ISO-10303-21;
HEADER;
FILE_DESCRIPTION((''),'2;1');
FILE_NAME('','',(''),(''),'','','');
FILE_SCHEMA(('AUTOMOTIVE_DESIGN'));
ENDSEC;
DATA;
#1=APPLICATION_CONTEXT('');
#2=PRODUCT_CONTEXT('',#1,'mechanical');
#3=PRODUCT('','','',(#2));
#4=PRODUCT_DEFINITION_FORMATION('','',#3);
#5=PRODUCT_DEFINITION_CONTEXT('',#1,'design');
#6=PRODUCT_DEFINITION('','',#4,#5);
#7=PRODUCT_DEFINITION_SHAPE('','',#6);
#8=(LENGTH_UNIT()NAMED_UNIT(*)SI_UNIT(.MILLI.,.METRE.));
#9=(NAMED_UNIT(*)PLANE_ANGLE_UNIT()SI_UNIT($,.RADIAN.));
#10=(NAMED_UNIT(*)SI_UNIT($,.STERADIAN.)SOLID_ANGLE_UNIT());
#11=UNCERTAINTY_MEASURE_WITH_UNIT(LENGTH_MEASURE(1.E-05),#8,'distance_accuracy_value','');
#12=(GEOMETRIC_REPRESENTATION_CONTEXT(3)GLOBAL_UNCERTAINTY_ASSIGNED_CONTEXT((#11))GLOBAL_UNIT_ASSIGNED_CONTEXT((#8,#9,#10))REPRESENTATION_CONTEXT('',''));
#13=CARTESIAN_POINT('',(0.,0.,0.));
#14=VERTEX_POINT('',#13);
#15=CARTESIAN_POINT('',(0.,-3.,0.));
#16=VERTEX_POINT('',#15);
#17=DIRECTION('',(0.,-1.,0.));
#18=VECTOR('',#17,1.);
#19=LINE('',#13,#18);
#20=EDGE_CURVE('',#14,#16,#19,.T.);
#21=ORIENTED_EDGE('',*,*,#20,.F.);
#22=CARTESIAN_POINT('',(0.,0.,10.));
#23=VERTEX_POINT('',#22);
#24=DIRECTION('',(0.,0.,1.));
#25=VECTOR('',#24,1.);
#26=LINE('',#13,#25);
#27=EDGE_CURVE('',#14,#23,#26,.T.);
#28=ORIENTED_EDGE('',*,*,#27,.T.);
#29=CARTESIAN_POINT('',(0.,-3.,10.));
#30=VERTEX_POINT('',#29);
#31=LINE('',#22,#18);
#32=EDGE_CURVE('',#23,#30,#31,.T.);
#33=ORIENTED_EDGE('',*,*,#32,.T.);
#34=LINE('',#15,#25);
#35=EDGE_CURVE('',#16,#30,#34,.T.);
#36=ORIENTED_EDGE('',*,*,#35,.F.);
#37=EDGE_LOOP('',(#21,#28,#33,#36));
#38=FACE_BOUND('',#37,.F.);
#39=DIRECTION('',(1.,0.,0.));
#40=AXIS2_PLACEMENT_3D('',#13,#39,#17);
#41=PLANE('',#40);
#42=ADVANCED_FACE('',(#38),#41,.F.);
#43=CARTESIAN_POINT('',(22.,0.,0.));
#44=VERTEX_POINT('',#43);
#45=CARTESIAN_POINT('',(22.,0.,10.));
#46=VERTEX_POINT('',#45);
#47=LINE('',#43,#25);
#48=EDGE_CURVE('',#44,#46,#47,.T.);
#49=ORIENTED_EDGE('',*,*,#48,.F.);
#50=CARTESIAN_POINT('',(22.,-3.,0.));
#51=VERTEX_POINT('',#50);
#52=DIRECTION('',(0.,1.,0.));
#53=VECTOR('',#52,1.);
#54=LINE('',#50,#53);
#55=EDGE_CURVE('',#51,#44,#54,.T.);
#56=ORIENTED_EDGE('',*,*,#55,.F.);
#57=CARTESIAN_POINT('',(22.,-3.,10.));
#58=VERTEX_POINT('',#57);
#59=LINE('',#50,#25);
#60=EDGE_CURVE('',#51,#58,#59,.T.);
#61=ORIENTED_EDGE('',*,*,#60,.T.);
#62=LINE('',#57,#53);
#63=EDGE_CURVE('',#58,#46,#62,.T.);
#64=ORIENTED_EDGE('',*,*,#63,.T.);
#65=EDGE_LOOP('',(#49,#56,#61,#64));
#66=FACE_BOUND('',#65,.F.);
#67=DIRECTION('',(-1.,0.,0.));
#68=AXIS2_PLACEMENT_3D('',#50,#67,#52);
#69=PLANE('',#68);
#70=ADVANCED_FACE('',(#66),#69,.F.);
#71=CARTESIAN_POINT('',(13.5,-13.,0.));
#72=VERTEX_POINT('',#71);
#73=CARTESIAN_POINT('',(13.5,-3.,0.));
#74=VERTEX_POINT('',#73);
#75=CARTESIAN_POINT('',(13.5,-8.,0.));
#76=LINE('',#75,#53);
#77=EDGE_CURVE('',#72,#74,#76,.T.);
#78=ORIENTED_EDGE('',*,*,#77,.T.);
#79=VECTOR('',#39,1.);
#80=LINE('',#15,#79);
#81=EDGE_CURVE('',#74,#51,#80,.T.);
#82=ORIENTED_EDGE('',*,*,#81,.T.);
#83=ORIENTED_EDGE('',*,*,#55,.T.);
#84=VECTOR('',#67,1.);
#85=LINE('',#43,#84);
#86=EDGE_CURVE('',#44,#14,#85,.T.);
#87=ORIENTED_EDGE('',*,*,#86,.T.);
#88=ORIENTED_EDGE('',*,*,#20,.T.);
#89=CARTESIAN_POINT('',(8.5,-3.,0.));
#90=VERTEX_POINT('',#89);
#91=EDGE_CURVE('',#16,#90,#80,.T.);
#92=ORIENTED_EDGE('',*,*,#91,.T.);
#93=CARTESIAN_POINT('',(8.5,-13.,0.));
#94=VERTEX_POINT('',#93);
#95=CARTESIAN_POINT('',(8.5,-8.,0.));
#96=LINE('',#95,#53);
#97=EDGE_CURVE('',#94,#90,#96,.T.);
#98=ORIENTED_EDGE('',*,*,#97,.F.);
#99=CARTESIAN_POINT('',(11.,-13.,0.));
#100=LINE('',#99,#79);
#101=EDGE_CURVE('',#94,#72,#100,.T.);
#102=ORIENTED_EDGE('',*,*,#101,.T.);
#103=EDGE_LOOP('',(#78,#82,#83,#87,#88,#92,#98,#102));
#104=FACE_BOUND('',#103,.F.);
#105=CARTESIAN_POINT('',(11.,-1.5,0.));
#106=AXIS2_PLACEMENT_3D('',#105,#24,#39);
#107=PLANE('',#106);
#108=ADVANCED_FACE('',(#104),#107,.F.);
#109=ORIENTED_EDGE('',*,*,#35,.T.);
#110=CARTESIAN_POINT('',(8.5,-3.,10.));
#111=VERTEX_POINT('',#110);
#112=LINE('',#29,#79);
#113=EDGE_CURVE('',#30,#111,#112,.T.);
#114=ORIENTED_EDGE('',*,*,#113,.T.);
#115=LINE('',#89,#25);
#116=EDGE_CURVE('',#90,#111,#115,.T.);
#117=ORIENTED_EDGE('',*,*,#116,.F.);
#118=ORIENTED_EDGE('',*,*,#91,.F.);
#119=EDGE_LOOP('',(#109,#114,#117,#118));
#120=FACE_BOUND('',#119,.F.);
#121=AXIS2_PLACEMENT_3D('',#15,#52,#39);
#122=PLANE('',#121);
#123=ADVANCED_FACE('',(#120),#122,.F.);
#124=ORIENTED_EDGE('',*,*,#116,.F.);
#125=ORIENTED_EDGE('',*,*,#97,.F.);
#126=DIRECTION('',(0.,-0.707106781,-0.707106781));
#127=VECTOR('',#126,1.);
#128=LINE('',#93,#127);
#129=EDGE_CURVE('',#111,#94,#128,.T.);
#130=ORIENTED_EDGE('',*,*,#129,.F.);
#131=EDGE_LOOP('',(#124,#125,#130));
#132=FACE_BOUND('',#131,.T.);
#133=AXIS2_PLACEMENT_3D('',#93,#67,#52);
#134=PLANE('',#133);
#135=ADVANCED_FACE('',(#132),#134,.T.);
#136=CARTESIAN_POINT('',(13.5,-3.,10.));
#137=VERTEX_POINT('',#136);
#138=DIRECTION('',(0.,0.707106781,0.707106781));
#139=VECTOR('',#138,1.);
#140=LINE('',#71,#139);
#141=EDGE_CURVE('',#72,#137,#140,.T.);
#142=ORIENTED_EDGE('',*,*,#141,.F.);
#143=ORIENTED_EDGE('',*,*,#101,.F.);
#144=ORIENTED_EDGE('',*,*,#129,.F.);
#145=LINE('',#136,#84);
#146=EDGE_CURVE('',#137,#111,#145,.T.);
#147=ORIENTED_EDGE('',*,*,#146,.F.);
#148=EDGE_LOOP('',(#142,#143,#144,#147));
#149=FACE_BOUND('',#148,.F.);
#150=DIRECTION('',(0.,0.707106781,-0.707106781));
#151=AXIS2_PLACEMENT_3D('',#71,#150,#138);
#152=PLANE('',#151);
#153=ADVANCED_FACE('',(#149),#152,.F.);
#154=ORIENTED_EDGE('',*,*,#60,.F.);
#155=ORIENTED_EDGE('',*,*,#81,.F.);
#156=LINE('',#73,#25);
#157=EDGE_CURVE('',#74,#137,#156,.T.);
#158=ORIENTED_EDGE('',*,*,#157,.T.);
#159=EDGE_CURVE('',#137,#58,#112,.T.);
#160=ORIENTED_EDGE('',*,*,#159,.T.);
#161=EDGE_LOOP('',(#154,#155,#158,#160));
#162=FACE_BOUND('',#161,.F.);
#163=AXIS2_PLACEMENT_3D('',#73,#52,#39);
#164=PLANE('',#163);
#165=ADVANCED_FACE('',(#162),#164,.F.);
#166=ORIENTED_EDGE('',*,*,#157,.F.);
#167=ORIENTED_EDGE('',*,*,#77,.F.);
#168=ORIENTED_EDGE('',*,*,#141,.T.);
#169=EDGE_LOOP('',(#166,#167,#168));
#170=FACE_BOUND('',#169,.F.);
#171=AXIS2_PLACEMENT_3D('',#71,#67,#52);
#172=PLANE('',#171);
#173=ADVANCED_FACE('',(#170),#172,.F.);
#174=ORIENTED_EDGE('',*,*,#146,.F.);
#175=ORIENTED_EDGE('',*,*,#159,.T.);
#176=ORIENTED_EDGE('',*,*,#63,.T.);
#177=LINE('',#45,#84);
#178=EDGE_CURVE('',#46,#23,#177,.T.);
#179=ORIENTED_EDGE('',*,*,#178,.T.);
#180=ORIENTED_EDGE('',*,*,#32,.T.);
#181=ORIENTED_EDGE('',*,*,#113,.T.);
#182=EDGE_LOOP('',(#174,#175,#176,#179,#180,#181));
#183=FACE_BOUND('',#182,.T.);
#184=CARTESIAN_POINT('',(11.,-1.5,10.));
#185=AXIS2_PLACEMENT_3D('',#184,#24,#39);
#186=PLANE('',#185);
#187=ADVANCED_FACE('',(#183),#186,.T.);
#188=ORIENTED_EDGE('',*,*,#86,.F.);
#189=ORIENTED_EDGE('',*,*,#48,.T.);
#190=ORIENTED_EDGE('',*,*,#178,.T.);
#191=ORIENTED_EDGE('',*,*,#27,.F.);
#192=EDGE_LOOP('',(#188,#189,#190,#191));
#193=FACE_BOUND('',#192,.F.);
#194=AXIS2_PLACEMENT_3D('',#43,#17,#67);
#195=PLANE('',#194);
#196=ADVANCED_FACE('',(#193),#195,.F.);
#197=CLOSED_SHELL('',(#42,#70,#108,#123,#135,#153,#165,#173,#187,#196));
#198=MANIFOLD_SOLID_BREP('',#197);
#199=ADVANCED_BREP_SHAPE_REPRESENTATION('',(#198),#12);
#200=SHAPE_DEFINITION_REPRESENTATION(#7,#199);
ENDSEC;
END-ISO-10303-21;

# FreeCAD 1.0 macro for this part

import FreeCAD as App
import Part
import Sketcher

V = App.Vector
Q = App.Units.Quantity

doc = App.newDocument("Part")
params = doc.addObject("Spreadsheet::Sheet", "Params")
for row, (alias, value) in enumerate([
    ("sketch1_width", "22 mm"),
    ("sketch1_width2", "5 mm"),
    ("sketch1_height", "3 mm"),
    ("sketch1_height2", "10 mm"),
    ("pad1_length", "10 mm"),
    ("sketch2_width", "10 mm"),
], start=1):
    params.set(f"A{row}", alias)
    params.set(f"B{row}", "=" + value)
    params.setAlias(f"B{row}", alias)

body = doc.addObject("PartDesign::Body", "Body")

# Sketch on XY plane
sketch1 = body.newObject("Sketcher::SketchObject", "Sketch")
sketch1.AttachmentSupport = (doc.getObject("XY_Plane"), [""])
sketch1.MapMode = "FlatFace"
sketch1.addGeometry(Part.LineSegment(V(22, 0, 0), V(0, 0, 0)), False)
sketch1.addGeometry(Part.LineSegment(V(0, 0, 0), V(0, -3, 0)), False)
sketch1.addGeometry(Part.LineSegment(V(0, -3, 0), V(8.5, -3, 0)), False)
sketch1.addGeometry(Part.LineSegment(V(8.5, -3, 0), V(8.5, -13, 0)), False)
sketch1.addGeometry(Part.LineSegment(V(8.5, -13, 0), V(13.5, -13, 0)), False)
sketch1.addGeometry(Part.LineSegment(V(13.5, -13, 0), V(13.5, -3, 0)), False)
sketch1.addGeometry(Part.LineSegment(V(13.5, -3, 0), V(22, -3, 0)), False)
sketch1.addGeometry(Part.LineSegment(V(22, -3, 0), V(22, 0, 0)), False)
sketch1.addConstraint(Sketcher.Constraint("Coincident", 0, 2, 1, 1))
sketch1.addConstraint(Sketcher.Constraint("Coincident", 1, 2, 2, 1))
sketch1.addConstraint(Sketcher.Constraint("Coincident", 2, 2, 3, 1))
sketch1.addConstraint(Sketcher.Constraint("Coincident", 3, 2, 4, 1))
sketch1.addConstraint(Sketcher.Constraint("Coincident", 4, 2, 5, 1))
sketch1.addConstraint(Sketcher.Constraint("Coincident", 5, 2, 6, 1))
sketch1.addConstraint(Sketcher.Constraint("Coincident", 6, 2, 7, 1))
sketch1.addConstraint(Sketcher.Constraint("Coincident", 7, 2, 0, 1))
sketch1.addConstraint(Sketcher.Constraint("Horizontal", 0))
sketch1.addConstraint(Sketcher.Constraint("Vertical", 1))
sketch1.addConstraint(Sketcher.Constraint("Horizontal", 2))
sketch1.addConstraint(Sketcher.Constraint("Vertical", 3))
sketch1.addConstraint(Sketcher.Constraint("Horizontal", 4))
sketch1.addConstraint(Sketcher.Constraint("Vertical", 5))
sketch1.addConstraint(Sketcher.Constraint("Horizontal", 6))
sketch1.addConstraint(Sketcher.Constraint("Vertical", 7))
sketch1.addConstraint(Sketcher.Constraint("Coincident", 0, 2, -1, 1))
sketch1.addConstraint(Sketcher.Constraint("Horizontal", 2, 2, 5, 2))
sketch1.addConstraint(Sketcher.Constraint("Equal", 2, 6))
sketch1.addConstraint(Sketcher.Constraint("DistanceX", 0, 2, 0, 1, Q("22 mm")))
sketch1.addConstraint(Sketcher.Constraint("DistanceX", 4, 1, 4, 2, Q("5 mm")))
sketch1.addConstraint(Sketcher.Constraint("DistanceY", 1, 2, 1, 1, Q("3 mm")))
sketch1.addConstraint(Sketcher.Constraint("DistanceY", 3, 2, 3, 1, Q("10 mm")))
sketch1.setExpression("Constraints[19]", "Params.sketch1_width")
sketch1.setExpression("Constraints[20]", "Params.sketch1_width2")
sketch1.setExpression("Constraints[21]", "Params.sketch1_height")
sketch1.setExpression("Constraints[22]", "Params.sketch1_height2")
pad1 = body.newObject("PartDesign::Pad", "Pad")
pad1.Profile = sketch1
pad1.setExpression("Length", "Params.pad1_length")

# Sketch on YZ plane
sketch2 = body.newObject("Sketcher::SketchObject", "Sketch001")
sketch2.AttachmentSupport = (doc.getObject("YZ_Plane"), [""])
sketch2.MapMode = "FlatFace"
sketch2.AttachmentOffset = App.Placement(V(0, 0, 13.5), App.Rotation())
sketch2.addGeometry(Part.LineSegment(V(-13, 10, 0), V(-13, 0, 0)), False)
sketch2.addGeometry(Part.LineSegment(V(-13, 0, 0), V(-3, 10, 0)), False)
sketch2.addGeometry(Part.LineSegment(V(-3, 10, 0), V(-13, 10, 0)), False)
sketch2.addConstraint(Sketcher.Constraint("Coincident", 0, 2, 1, 1))
sketch2.addConstraint(Sketcher.Constraint("Coincident", 1, 2, 2, 1))
sketch2.addConstraint(Sketcher.Constraint("Coincident", 2, 2, 0, 1))
sketch2.addConstraint(Sketcher.Constraint("Vertical", 0))
sketch2.addConstraint(Sketcher.Constraint("Horizontal", 2))
sketch2.addConstraint(Sketcher.Constraint("PointOnObject", 0, 2, -1))
sketch2.addConstraint(Sketcher.Constraint("Equal", 2, 0))
sketch2.addConstraint(Sketcher.Constraint("DistanceX", 2, 2, 2, 1, Q("10 mm")))
sketch2.addConstraint(Sketcher.Constraint("DistanceX", 0, 2, -1, 1, Q("13 mm")))
sketch2.setExpression("Constraints[7]", "Params.sketch2_width")
pocket1 = body.newObject("PartDesign::Pocket", "Pocket")
pocket1.Profile = sketch2
pocket1.Type = "ThroughAll"

doc.recompute()
